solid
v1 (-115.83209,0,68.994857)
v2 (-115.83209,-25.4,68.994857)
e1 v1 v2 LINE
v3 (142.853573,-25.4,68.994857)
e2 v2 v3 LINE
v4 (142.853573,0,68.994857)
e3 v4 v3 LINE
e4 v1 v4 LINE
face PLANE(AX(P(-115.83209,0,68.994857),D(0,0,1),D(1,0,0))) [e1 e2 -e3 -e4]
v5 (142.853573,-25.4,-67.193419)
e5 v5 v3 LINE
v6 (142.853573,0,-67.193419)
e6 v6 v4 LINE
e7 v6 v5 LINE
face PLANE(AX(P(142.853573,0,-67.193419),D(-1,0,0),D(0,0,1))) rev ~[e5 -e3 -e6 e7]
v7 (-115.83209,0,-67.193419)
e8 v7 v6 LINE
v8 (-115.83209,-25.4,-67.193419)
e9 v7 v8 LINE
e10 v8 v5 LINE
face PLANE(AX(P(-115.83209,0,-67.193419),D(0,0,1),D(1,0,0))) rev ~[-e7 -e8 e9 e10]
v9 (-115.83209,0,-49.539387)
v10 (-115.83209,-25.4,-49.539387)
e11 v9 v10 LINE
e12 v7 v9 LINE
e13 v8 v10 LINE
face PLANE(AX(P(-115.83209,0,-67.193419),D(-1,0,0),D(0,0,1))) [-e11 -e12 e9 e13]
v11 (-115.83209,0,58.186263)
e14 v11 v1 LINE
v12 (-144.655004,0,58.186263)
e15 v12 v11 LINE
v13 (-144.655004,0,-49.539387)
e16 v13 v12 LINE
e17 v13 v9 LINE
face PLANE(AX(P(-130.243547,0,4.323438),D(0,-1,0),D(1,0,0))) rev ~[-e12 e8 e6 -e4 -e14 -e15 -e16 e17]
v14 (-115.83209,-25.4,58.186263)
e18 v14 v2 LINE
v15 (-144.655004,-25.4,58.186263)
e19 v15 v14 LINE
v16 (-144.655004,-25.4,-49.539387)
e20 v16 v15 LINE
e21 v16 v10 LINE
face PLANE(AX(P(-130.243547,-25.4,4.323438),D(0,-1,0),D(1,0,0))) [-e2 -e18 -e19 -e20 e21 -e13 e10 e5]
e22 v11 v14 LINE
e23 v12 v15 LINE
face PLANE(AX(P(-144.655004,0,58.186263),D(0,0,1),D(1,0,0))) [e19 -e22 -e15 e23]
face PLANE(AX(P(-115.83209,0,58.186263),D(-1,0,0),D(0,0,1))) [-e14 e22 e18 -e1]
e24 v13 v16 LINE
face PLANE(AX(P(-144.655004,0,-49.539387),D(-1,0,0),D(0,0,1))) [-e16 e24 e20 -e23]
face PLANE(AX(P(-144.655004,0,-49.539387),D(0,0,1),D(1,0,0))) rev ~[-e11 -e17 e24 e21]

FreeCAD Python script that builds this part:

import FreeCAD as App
import Part
import Sketcher


def add_polygon(sketch, points):
    """Adds a closed chain of lines whose ends are joined by coincident constraints."""
    first, n = sketch.GeometryCount, len(points)
    for a, b in zip(points, points[1:] + points[:1]):
        sketch.addGeometry(Part.LineSegment(App.Vector(*a, 0), App.Vector(*b, 0)), False)
    for i in range(n):
        sketch.addConstraint(Sketcher.Constraint("Coincident", first + i, 2, first + (i + 1) % n, 1))

doc = App.newDocument("Part")
params = doc.addObject("Spreadsheet::Sheet", "Params")
for row, (alias, value) in enumerate([
    ("pad1_length", "1 in"),
], start=1):
    params.set(f"A{row}", alias)
    params.set(f"B{row}", "=" + value)
    params.setAlias(f"B{row}", alias)

body = doc.addObject("PartDesign::Body", "Body")

sketch1 = doc.addObject("Sketcher::SketchObject", "Sketch")
body.addObject(sketch1)
sketch1.AttachmentSupport = (doc.XZ_Plane, [""])
sketch1.MapMode = "FlatFace"
add_polygon(sketch1, [(-145, 58), (-145, -50), (-116, -50), (-116, -67), (143, -67), (143, 69), (-116, 69), (-116, 58)])
sketch1.addConstraint([
    Sketcher.Constraint("Vertical", 0),
    Sketcher.Constraint("Horizontal", 1),
    Sketcher.Constraint("Vertical", 2),
    Sketcher.Constraint("Horizontal", 3),
    Sketcher.Constraint("Vertical", 4),
    Sketcher.Constraint("Horizontal", 5),
    Sketcher.Constraint("Vertical", 6),
    Sketcher.Constraint("Horizontal", 7),
    Sketcher.Constraint("Vertical", 2, 2, 5, 2),
    Sketcher.Constraint("DistanceY", 0, 2, 0, 1, 107.72565),
    Sketcher.Constraint("DistanceY", 2, 2, 2, 1, 17.654032),
    Sketcher.Constraint("DistanceX", 1, 1, 1, 2, 28.822914),
    Sketcher.Constraint("DistanceX", 3, 1, 3, 2, 258.685663),
    Sketcher.Constraint("DistanceY", 4, 1, 4, 2, 136.188276),
    Sketcher.Constraint("DistanceX", 1, 2, -1, 1, 115.83209),
    Sketcher.Constraint("DistanceY", 2, 2, -1, 1, 67.193419),
])
pad1 = doc.addObject("PartDesign::Pad", "Pad")
body.addObject(pad1)
pad1.Profile = sketch1
pad1.setExpression("Length", "Params.pad1_length")

doc.recompute()
